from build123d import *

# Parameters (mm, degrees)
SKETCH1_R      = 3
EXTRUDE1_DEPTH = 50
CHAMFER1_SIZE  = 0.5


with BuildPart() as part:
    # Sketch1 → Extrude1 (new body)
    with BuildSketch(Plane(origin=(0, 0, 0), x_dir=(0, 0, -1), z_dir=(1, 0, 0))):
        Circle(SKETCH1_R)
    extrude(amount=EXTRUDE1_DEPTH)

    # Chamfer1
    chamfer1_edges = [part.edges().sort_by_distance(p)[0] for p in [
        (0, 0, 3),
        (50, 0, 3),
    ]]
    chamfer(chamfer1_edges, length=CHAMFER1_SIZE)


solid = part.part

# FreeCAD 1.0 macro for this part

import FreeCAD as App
import Part
import Sketcher

V = App.Vector
Q = App.Units.Quantity


def edges_at(feature, points):
    """Names of the edges that pass closest to the given points."""
    edges = feature.Shape.Edges
    near = lambda p: min(range(len(edges)), key=lambda i: edges[i].distToShape(Part.Vertex(*p))[0])
    return sorted({f"Edge{near(p) + 1}" for p in points})

doc = App.newDocument("Part")
body = doc.addObject("PartDesign::Body", "Body")

sketch1 = body.newObject("Sketcher::SketchObject", "Sketch")
sketch1.AttachmentSupport = (doc.getObject("YZ_Plane"), [""])
sketch1.MapMode = "FlatFace"
sketch1.addGeometry(Part.Circle(V(0, 0, 0), V(0, 0, 1), 3), False)
sketch1.addConstraint(Sketcher.Constraint("Coincident", 0, 3, -1, 1))
sketch1.addConstraint(Sketcher.Constraint("Diameter", 0, Q("6 mm")))
pad1 = body.newObject("PartDesign::Pad", "Pad")
pad1.Profile = sketch1
pad1.Length = 50
doc.recompute()

chamfer = body.newObject("PartDesign::Chamfer", "Chamfer")
chamfer.Base = (pad1, edges_at(pad1, [(0, 0, 3), (50, 0, 3)]))
chamfer.Size = 0.5

doc.recompute()
